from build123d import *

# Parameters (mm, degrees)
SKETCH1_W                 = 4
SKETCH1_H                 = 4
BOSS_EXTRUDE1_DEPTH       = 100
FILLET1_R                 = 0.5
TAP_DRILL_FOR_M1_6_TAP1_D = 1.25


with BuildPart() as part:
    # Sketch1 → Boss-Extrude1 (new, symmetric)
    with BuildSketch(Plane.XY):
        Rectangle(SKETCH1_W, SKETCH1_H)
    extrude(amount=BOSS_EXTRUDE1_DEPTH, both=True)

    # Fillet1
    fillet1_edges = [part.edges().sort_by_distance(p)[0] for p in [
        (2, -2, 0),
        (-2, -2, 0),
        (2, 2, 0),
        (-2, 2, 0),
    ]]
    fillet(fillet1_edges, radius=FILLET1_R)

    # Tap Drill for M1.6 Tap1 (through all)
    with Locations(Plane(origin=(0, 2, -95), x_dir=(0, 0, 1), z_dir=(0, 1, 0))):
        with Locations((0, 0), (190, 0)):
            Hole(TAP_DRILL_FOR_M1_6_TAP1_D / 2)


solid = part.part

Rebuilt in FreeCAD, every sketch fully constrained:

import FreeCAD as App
import Part
import Sketcher
from FreeCAD import Vector
Q = App.Units.Quantity


def edges_at(feature, points):
    """Names of the edges that pass closest to the given points."""
    edges = feature.Shape.Edges
    near = lambda p: min(range(len(edges)), key=lambda i: edges[i].distToShape(Part.Vertex(*p))[0])
    return sorted({f"Edge{near(p) + 1}" for p in points})


def add_polygon(sketch, points):
    """Adds a closed chain of lines whose ends are joined by coincident constraints."""
    first, n = sketch.GeometryCount, len(points)
    for a, b in zip(points, points[1:] + points[:1]):
        sketch.addGeometry(Part.LineSegment(App.Vector(*a, 0), App.Vector(*b, 0)), False)
    for i in range(n):
        sketch.addConstraint(Sketcher.Constraint("Coincident", first + i, 2, first + (i + 1) % n, 1))

doc = App.newDocument("Part")
params = doc.addObject("Spreadsheet::Sheet", "Params")
for row, (alias, value) in enumerate([
    ("sketch1_width", "4 mm"),
    ("pad1_length", "200 mm"),
    ("fillet_radius", "0.5 mm"),
    ("sketch2_diameter", "1.25 mm"),
    ("hole_diameter", "1.25 mm"),
], start=1):
    params.set(f"A{row}", alias)
    params.set(f"B{row}", "=" + value)
    params.setAlias(f"B{row}", alias)

body = doc.addObject("PartDesign::Body", "Body")

sketch1 = doc.addObject("Sketcher::SketchObject", "Sketch")
body.addObject(sketch1)
sketch1.AttachmentSupport = (doc.XY_Plane, [""])
sketch1.MapMode = "FlatFace"
add_polygon(sketch1, [(-2, 2), (-2, -2), (2, -2), (2, 2)])
sketch1.addConstraint(Sketcher.Constraint("Vertical", 0))
sketch1.addConstraint(Sketcher.Constraint("Horizontal", 1))
sketch1.addConstraint(Sketcher.Constraint("Vertical", 2))
sketch1.addConstraint(Sketcher.Constraint("Horizontal", 3))
sketch1.addConstraint(Sketcher.Constraint("Symmetric", 0, 2, 2, 2, -1, 1))
sketch1.addConstraint(Sketcher.Constraint("Equal", 3, 0))
sketch1.addConstraint(Sketcher.Constraint("DistanceX", 1, 1, 1, 2, Q("4 mm")))
sketch1.setExpression("Constraints[10]", "Params.sketch1_width")
pad1 = doc.addObject("PartDesign::Pad", "Pad")
body.addObject(pad1)
pad1.Profile = sketch1
pad1.setExpression("Length", "Params.pad1_length")
pad1.Midplane = True
doc.recompute()

fillet = doc.addObject("PartDesign::Fillet", "Fillet")
body.addObject(fillet)
fillet.Base = (pad1, edges_at(pad1, [
    (2, -2, 0),
    (-2, -2, 0),
    (2, 2, 0),
    (-2, 2, 0),
]))
fillet.setExpression("Radius", "Params.fillet_radius")

sketch2 = doc.addObject("Sketcher::SketchObject", "Sketch001")
body.addObject(sketch2)
sketch2.AttachmentSupport = (doc.XZ_Plane, [""])
sketch2.MapMode = "FlatFace"
sketch2.AttachmentOffset = App.Placement(Vector(0, 0, -2), App.Rotation())
sketch2.addGeometry(Part.Circle(Vector(0, -95, 0), Vector(0, 0, 1), 0.625), False)
sketch2.addGeometry(Part.Circle(Vector(0, 95, 0), Vector(0, 0, 1), 0.625), False)
sketch2.addConstraint(Sketcher.Constraint("Equal", 0, 1))
sketch2.addConstraint(Sketcher.Constraint("Symmetric", 0, 3, 1, 3, -1, 1))
sketch2.addConstraint(Sketcher.Constraint("PointOnObject", 0, 3, -2))
sketch2.addConstraint(Sketcher.Constraint("Diameter", 0, Q("1.25 mm")))
sketch2.addConstraint(Sketcher.Constraint("DistanceY", 0, 3, -1, 1, Q("95 mm")))
sketch2.setExpression("Constraints[3]", "Params.sketch2_diameter")
doc.recompute()
hole = doc.addObject("PartDesign::Hole", "Hole")
body.addObject(hole)
hole.Profile = sketch2
hole.ThreadType = "None"
hole.setExpression("Diameter", "Params.hole_diameter")
hole.DepthType = "ThroughAll"
hole.Reversed = True

doc.recompute()
